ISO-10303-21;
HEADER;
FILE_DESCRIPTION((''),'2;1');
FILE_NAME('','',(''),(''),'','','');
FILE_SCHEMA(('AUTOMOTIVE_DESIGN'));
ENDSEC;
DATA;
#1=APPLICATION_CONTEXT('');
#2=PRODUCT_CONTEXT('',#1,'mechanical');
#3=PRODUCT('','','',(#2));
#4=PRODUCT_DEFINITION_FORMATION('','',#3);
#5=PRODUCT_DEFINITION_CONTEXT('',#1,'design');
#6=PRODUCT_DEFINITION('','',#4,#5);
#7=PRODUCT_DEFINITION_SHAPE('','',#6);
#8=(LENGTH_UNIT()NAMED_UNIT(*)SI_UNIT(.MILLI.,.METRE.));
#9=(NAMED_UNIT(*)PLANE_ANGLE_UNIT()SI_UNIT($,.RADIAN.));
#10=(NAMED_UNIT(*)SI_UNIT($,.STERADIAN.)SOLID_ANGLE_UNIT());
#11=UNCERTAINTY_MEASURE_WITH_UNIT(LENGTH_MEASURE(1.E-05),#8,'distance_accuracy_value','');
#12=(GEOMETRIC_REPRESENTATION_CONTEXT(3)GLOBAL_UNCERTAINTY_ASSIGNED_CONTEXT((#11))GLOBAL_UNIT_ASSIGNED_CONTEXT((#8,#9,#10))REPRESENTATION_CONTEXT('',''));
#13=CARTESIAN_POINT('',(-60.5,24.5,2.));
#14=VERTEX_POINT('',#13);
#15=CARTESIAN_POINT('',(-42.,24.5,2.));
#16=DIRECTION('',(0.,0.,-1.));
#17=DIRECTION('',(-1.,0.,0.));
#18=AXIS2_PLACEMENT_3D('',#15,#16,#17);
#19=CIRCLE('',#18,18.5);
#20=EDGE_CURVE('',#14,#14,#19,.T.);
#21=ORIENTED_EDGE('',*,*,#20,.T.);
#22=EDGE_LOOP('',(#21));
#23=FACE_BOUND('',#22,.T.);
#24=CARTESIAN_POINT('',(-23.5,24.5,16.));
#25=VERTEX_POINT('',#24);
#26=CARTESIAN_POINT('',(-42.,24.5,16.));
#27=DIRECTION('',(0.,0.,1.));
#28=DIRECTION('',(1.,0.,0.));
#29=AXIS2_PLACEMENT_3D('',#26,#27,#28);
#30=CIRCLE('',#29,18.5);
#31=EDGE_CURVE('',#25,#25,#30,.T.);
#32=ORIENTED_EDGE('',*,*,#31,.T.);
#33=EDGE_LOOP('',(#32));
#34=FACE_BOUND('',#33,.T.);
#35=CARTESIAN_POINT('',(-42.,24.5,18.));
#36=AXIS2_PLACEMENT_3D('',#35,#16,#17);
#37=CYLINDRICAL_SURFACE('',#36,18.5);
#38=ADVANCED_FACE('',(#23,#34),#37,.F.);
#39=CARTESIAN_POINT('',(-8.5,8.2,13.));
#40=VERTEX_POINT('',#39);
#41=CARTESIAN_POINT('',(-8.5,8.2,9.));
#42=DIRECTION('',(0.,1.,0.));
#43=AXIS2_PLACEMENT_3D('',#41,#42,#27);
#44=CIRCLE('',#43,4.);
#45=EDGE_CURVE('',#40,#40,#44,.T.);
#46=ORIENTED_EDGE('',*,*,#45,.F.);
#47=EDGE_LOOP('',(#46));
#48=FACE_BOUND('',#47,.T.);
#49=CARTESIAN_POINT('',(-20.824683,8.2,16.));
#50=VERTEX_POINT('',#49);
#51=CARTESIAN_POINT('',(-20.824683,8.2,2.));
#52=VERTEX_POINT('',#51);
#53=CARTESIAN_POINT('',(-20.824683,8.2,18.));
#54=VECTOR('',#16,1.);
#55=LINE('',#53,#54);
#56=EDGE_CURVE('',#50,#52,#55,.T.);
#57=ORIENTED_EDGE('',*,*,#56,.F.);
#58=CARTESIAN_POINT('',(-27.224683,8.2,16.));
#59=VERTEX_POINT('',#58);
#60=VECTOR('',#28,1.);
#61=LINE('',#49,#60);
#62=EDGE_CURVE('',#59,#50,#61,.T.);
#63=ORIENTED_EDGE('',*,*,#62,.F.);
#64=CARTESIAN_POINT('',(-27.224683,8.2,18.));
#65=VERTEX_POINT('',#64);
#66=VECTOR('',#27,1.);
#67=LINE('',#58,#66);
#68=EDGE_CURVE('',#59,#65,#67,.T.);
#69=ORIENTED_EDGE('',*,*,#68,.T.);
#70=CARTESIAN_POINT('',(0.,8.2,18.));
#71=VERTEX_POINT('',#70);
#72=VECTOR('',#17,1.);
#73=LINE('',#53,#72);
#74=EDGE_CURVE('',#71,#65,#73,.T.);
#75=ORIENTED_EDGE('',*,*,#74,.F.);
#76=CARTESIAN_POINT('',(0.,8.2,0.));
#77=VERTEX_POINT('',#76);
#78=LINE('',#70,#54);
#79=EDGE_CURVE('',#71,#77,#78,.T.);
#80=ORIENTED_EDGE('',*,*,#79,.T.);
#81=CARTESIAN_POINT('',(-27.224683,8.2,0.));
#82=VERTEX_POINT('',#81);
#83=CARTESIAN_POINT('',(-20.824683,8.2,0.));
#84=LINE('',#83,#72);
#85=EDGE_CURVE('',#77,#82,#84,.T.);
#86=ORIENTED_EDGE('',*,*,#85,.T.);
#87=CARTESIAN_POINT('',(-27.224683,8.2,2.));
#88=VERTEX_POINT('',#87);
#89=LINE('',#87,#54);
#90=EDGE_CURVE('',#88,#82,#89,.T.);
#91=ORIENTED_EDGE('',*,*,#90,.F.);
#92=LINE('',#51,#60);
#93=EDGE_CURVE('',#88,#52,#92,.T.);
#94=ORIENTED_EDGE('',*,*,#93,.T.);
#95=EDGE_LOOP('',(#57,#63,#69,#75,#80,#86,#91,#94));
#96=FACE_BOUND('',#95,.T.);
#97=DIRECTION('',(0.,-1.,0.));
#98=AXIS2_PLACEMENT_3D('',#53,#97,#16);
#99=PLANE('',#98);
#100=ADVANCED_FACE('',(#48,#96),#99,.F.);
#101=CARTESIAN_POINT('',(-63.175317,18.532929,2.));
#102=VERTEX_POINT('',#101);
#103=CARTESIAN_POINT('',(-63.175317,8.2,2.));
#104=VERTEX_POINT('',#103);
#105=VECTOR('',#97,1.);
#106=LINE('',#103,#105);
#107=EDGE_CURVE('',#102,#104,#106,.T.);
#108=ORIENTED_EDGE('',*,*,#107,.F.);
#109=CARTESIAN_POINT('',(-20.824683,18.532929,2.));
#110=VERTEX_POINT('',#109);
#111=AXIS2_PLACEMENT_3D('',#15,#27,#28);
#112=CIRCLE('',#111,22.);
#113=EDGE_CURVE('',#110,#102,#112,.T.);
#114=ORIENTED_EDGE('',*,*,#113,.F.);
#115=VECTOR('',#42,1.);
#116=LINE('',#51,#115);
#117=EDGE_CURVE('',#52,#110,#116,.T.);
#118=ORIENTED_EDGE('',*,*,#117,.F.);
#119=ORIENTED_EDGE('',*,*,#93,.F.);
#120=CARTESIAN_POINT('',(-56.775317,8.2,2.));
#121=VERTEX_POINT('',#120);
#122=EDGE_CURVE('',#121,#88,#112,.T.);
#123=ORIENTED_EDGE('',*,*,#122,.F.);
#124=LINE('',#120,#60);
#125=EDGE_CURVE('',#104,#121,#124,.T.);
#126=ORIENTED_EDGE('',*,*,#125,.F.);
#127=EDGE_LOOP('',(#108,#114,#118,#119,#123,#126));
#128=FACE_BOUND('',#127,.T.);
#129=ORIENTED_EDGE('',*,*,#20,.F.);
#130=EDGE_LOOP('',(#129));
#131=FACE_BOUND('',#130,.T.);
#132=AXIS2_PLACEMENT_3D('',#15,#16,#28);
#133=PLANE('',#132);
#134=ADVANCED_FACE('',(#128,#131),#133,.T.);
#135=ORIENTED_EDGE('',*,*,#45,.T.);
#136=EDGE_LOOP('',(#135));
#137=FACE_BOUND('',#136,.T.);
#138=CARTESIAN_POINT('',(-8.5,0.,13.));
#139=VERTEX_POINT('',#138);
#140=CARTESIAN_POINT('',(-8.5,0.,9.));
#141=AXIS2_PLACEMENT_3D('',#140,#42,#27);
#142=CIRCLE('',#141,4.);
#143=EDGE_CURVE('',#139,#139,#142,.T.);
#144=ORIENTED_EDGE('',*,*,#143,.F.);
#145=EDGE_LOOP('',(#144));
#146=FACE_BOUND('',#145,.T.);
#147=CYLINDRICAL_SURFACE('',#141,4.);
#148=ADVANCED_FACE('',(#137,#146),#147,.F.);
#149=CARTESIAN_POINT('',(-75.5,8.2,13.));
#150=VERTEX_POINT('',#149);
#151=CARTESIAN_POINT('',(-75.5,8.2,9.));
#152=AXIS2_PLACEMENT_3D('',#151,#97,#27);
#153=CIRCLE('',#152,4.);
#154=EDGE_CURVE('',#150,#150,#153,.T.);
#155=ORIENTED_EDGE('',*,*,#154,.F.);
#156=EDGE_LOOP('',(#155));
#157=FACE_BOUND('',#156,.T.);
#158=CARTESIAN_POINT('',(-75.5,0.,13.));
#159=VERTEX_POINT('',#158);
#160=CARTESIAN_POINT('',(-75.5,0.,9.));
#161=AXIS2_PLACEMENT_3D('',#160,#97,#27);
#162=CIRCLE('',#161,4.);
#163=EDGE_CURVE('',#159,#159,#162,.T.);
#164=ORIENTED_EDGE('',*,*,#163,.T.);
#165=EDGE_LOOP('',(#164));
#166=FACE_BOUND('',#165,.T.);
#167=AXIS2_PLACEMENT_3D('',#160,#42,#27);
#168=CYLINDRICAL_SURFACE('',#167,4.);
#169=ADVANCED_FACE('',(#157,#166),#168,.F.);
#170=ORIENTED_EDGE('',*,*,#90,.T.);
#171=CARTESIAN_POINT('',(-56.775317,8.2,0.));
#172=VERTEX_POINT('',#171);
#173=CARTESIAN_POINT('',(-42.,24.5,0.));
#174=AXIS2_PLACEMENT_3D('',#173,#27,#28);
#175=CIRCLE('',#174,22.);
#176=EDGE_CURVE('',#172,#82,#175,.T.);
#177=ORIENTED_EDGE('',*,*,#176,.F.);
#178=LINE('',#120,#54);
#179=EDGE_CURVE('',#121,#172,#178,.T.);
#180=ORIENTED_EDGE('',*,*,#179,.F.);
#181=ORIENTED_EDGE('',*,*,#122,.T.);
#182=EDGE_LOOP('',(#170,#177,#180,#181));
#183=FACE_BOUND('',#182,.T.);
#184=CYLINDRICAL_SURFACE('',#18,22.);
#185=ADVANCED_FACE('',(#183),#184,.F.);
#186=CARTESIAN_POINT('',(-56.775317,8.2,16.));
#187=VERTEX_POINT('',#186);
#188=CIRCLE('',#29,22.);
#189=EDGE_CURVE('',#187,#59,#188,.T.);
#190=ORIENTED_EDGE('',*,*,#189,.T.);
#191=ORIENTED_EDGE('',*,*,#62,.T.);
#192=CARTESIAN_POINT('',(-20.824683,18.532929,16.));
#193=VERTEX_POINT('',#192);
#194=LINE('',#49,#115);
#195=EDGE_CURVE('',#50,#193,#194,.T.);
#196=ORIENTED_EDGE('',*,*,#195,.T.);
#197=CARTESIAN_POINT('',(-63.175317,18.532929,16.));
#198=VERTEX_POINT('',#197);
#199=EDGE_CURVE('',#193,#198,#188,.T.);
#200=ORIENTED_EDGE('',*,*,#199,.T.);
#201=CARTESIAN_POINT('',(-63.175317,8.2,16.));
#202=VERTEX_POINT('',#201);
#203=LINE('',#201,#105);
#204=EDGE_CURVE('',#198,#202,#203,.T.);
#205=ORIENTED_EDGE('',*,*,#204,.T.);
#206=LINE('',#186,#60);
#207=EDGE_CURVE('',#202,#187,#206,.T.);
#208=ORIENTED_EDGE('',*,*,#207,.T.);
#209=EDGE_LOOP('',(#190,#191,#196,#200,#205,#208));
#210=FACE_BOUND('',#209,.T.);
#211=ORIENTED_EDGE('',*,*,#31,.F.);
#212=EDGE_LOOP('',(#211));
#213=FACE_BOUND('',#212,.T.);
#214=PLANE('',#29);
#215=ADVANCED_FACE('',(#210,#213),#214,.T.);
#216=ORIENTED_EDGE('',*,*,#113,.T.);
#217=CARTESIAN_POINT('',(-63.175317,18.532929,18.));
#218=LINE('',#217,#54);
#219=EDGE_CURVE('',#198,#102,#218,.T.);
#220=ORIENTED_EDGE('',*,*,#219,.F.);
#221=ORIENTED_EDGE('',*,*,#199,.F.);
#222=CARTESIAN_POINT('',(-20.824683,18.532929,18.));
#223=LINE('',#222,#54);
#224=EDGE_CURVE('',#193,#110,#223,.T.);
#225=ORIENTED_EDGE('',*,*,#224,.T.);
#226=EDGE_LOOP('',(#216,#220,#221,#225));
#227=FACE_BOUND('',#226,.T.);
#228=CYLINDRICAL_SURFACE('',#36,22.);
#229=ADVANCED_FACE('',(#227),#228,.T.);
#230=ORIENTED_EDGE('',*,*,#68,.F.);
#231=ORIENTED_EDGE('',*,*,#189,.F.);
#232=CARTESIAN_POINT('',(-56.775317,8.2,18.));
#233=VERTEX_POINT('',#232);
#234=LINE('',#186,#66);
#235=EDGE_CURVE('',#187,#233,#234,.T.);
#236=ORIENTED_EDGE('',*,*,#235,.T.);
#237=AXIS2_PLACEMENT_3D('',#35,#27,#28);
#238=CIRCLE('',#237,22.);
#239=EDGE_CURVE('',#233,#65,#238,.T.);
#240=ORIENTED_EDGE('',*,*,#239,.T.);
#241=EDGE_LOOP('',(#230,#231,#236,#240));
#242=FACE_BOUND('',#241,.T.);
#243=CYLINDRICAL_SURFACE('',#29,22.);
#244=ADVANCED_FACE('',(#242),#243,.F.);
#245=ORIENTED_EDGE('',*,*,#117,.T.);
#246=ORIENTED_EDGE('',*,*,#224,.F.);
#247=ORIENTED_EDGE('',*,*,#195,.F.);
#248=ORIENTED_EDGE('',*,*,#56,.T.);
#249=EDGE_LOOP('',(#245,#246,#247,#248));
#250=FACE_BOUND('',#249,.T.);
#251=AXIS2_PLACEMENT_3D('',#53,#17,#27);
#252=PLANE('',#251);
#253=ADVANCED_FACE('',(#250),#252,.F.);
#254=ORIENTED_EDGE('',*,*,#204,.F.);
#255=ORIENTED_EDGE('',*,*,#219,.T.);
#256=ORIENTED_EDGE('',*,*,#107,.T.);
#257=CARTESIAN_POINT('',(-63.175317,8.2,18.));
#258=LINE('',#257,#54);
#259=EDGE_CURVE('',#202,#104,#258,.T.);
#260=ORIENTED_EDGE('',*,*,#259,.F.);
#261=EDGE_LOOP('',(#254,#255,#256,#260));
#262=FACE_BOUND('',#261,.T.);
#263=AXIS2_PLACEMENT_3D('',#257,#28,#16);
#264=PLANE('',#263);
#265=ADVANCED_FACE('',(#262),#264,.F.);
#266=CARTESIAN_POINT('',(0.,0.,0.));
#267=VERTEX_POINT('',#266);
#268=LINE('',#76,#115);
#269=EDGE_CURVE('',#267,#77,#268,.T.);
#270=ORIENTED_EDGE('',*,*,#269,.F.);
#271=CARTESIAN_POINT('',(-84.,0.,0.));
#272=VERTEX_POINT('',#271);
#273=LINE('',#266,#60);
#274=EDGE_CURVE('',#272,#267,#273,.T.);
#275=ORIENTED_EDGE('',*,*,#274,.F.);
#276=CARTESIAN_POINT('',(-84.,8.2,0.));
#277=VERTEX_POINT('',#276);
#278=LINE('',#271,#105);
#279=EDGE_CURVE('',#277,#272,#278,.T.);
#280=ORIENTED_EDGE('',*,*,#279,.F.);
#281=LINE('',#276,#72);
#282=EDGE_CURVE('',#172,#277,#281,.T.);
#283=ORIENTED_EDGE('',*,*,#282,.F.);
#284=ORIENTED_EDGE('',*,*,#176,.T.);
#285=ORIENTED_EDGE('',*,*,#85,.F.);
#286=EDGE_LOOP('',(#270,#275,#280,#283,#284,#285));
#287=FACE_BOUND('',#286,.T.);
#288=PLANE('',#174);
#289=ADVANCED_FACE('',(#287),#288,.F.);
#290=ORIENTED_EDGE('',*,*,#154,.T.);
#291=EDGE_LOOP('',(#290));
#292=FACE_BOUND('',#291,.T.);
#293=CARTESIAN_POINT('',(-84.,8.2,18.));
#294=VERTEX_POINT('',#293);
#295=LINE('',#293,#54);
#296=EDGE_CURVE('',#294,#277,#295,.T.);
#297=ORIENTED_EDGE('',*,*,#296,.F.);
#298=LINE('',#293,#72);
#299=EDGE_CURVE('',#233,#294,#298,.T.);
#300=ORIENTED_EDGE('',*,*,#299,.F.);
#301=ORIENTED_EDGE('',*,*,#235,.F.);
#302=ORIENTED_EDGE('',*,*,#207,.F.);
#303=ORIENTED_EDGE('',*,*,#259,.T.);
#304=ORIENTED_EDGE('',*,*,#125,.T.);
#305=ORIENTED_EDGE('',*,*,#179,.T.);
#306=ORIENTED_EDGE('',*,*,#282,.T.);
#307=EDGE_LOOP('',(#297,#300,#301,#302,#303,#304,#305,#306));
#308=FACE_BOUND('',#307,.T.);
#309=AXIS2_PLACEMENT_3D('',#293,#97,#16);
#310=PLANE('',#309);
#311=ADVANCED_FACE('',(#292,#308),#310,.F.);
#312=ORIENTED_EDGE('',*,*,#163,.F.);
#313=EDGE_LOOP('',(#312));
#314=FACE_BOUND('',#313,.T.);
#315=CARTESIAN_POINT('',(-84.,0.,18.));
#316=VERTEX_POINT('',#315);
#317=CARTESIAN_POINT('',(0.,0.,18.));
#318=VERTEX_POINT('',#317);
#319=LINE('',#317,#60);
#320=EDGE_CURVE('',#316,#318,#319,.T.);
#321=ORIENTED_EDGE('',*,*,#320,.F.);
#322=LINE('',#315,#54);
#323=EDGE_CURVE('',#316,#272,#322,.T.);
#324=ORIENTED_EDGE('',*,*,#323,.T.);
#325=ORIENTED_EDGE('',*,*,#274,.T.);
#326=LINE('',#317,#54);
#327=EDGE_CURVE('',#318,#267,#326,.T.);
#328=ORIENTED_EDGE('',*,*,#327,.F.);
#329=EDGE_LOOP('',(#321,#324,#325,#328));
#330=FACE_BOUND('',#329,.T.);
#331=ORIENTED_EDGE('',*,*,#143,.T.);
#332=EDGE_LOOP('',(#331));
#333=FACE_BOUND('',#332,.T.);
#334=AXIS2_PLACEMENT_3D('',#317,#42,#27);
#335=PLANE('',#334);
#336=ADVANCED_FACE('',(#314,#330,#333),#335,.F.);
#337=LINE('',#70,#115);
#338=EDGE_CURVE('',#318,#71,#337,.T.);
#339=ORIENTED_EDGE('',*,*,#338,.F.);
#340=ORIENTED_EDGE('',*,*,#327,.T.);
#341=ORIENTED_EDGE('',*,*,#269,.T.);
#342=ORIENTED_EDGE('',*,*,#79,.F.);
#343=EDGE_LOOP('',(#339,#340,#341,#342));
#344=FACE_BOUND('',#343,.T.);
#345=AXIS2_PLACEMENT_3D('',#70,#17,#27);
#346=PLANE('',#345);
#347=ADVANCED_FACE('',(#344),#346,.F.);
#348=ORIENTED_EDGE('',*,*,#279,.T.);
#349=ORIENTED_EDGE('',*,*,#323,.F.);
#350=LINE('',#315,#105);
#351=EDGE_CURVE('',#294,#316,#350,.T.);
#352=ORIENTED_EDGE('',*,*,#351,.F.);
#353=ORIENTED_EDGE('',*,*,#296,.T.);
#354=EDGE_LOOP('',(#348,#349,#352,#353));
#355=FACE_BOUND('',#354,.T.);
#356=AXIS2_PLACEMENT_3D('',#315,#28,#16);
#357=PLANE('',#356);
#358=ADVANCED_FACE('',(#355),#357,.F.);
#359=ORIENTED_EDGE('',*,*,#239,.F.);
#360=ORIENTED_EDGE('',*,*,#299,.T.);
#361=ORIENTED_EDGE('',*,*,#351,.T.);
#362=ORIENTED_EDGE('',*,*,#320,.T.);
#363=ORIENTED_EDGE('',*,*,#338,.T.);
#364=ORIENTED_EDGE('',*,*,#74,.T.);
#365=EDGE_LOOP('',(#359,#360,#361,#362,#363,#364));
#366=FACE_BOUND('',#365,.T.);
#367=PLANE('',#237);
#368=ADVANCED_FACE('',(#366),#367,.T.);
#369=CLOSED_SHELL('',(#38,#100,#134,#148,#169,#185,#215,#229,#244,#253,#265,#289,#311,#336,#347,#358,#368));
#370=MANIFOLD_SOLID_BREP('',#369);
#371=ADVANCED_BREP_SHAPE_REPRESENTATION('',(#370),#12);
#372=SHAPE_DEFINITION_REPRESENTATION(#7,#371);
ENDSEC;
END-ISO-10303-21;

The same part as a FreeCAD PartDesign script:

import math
import FreeCAD as App
import Part
import Sketcher

V = App.Vector

doc = App.newDocument("Part")
params = doc.addObject("Spreadsheet::Sheet", "Params")
for row, (alias, value) in enumerate([
    ("sketch1_diameter", "37 mm"),
    ("sketch1_radius", "22 mm"),
    ("sketch1_width", "84 mm"),
    ("sketch1_height", "8.2 mm"),
    ("pad1_length", "18 mm"),
    ("sketch2_diameter", "35 mm"),
    ("sketch2_radius", "22 mm"),
    ("sketch2_width", "6.4 mm"),
    ("pocket1_length", "2 mm"),
    ("sketch3_diameter", "8 mm"),
], start=1):
    params.set(f"A{row}", alias)
    params.set(f"B{row}", "=" + value)
    params.setAlias(f"B{row}", alias)

body = doc.addObject("PartDesign::Body", "Body")

sketch1 = doc.addObject("Sketcher::SketchObject", "Sketch")
body.addObject(sketch1)
sketch1.AttachmentSupport = (doc.XY_Plane, [""])
sketch1.MapMode = "FlatFace"
sketch1.addGeometry([
    Part.LineSegment(V(-84, 0, 0), V(0, 0, 0)),
    Part.LineSegment(V(0, 0, 0), V(0, 8.2, 0)),
    Part.LineSegment(V(0, 8.2, 0), V(-20.824683, 8.2, 0)),
    Part.LineSegment(V(-20.824683, 8.2, 0), V(-20.824683, 18.532929, 0)),
    Part.ArcOfCircle(Part.Circle(V(-42, 24.5, 0), V(0, 0, 1), 22), math.radians(-15.737503), math.radians(195.737503)),
    Part.LineSegment(V(-63.175317, 18.532929, 0), V(-63.175317, 8.2, 0)),
    Part.LineSegment(V(-63.175317, 8.2, 0), V(-84, 8.2, 0)),
    Part.LineSegment(V(-84, 8.2, 0), V(-84, 0, 0)),
    Part.Circle(V(-42, 24.5, 0), V(0, 0, 1), 18.5),
], False)
sketch1.addConstraint([
    Sketcher.Constraint("Coincident", 0, 2, 1, 1),
    Sketcher.Constraint("Coincident", 1, 2, 2, 1),
    Sketcher.Constraint("Coincident", 2, 2, 3, 1),
    Sketcher.Constraint("Coincident", 3, 2, 4, 1),
    Sketcher.Constraint("Coincident", 4, 2, 5, 1),
    Sketcher.Constraint("Coincident", 5, 2, 6, 1),
    Sketcher.Constraint("Coincident", 6, 2, 7, 1),
    Sketcher.Constraint("Coincident", 7, 2, 0, 1),
    Sketcher.Constraint("Horizontal", 0),
    Sketcher.Constraint("Vertical", 1),
    Sketcher.Constraint("Horizontal", 2),
    Sketcher.Constraint("Vertical", 3),
    Sketcher.Constraint("Vertical", 5),
    Sketcher.Constraint("Horizontal", 6),
    Sketcher.Constraint("Vertical", 7),
    Sketcher.Constraint("Coincident", 0, 2, -1, 1),
    Sketcher.Constraint("Coincident", 8, 3, 4, 3),
    Sketcher.Constraint("Horizontal", 3, 2, 4, 2),
    Sketcher.Constraint("Horizontal", 2, 2, 5, 2),
    Sketcher.Constraint("Equal", 2, 6),
    Sketcher.Constraint("Diameter", 8, 37.0),
    Sketcher.Constraint("Radius", 4, 22.0),
    Sketcher.Constraint("DistanceX", 0, 1, 0, 2, 84.0),
    Sketcher.Constraint("DistanceY", 1, 1, 1, 2, 8.2),
    Sketcher.Constraint("DistanceY", -1, 1, 4, 3, 24.5),
    Sketcher.Constraint("DistanceY", 3, 1, 3, 2, 10.332929),
])
sketch1.setExpression("Constraints[20]", "Params.sketch1_diameter")
sketch1.setExpression("Constraints[21]", "Params.sketch1_radius")
sketch1.setExpression("Constraints[22]", "Params.sketch1_width")
sketch1.setExpression("Constraints[23]", "Params.sketch1_height")
pad1 = doc.addObject("PartDesign::Pad", "Pad")
body.addObject(pad1)
pad1.Profile = sketch1
pad1.setExpression("Length", "Params.pad1_length")

sketch2 = doc.addObject("Sketcher::SketchObject", "Sketch001")
body.addObject(sketch2)
sketch2.AttachmentSupport = (doc.XY_Plane, [""])
sketch2.MapMode = "FlatFace"
sketch2.AttachmentOffset = App.Placement(V(0, 0, 18), App.Rotation())
sketch2.addGeometry([
    Part.LineSegment(V(-27.224683, 8.2, 0), V(-20.824683, 8.2, 0)),
    Part.LineSegment(V(-20.824683, 8.2, 0), V(-20.824683, 18.532929, 0)),
    Part.ArcOfCircle(Part.Circle(V(-42, 24.5, 0), V(0, 0, 1), 22), math.radians(-15.737503), math.radians(195.737503)),
    Part.LineSegment(V(-63.175317, 18.532929, 0), V(-63.175317, 8.2, 0)),
    Part.LineSegment(V(-63.175317, 8.2, 0), V(-56.775317, 8.2, 0)),
    Part.ArcOfCircle(Part.Circle(V(-42, 24.5, 0), V(0, 0, 1), 22), math.radians(-132.191086), math.radians(-47.808914)),
    Part.Circle(V(-42, 24.5, 0), V(0, 0, 1), 17.5),
], False)
sketch2.addConstraint([
    Sketcher.Constraint("Coincident", 0, 2, 1, 1),
    Sketcher.Constraint("Coincident", 1, 2, 2, 1),
    Sketcher.Constraint("Coincident", 2, 2, 3, 1),
    Sketcher.Constraint("Coincident", 3, 2, 4, 1),
    Sketcher.Constraint("Coincident", 4, 2, 5, 1),
    Sketcher.Constraint("Coincident", 5, 2, 0, 1),
    Sketcher.Constraint("Horizontal", 0),
    Sketcher.Constraint("Vertical", 1),
    Sketcher.Constraint("Vertical", 3),
    Sketcher.Constraint("Horizontal", 4),
    Sketcher.Constraint("Coincident", 5, 3, 2, 3),
    Sketcher.Constraint("Coincident", 6, 3, 2, 3),
    Sketcher.Constraint("Equal", 2, 5),
    Sketcher.Constraint("Horizontal", 1, 2, 2, 2),
    Sketcher.Constraint("Horizontal", 0, 2, 3, 2),
    Sketcher.Constraint("Diameter", 6, 35.0),
    Sketcher.Constraint("Radius", 2, 22.0),
    Sketcher.Constraint("DistanceX", 0, 1, 0, 2, 6.4),
    Sketcher.Constraint("DistanceX", 2, 3, -1, 1, 42.0),
    Sketcher.Constraint("DistanceY", -1, 1, 2, 3, 24.5),
    Sketcher.Constraint("DistanceY", -1, 1, 0, 2, 8.2),
])
sketch2.setExpression("Constraints[15]", "Params.sketch2_diameter")
sketch2.setExpression("Constraints[16]", "Params.sketch2_radius")
sketch2.setExpression("Constraints[17]", "Params.sketch2_width")
pocket1 = doc.addObject("PartDesign::Pocket", "Pocket")
body.addObject(pocket1)
pocket1.Profile = sketch2
pocket1.setExpression("Length", "Params.pocket1_length")
doc.recompute()

datumplane = doc.addObject("PartDesign::Plane", "DatumPlane")
body.addObject(datumplane)
datumplane.AttachmentSupport = (doc.XY_Plane, [""])
datumplane.MapMode = "FlatFace"
datumplane.AttachmentOffset = App.Placement(V(0, 0, 9), App.Rotation())
mirrored = doc.addObject("PartDesign::Mirrored", "Mirrored")
body.addObject(mirrored)
mirrored.Originals = [pocket1]
mirrored.MirrorPlane = (datumplane, [""])
body.Tip = mirrored

sketch3 = doc.addObject("Sketcher::SketchObject", "Sketch002")
body.addObject(sketch3)
sketch3.AttachmentSupport = (doc.XZ_Plane, [""])
sketch3.MapMode = "FlatFace"
sketch3.AttachmentOffset = App.Placement(V(0, 0, -8.2), App.Rotation())
sketch3.addGeometry(Part.Circle(V(-8.5, 9, 0), V(0, 0, 1), 4), False)
sketch3.addConstraint([
    Sketcher.Constraint("Diameter", 0, 8.0),
    Sketcher.Constraint("DistanceY", -1, 1, 0, 3, 9.0),
    Sketcher.Constraint("DistanceX", 0, 3, -1, 1, 8.5),
])
sketch3.setExpression("Constraints[0]", "Params.sketch3_diameter")
pocket2 = doc.addObject("PartDesign::Pocket", "Pocket001")
body.addObject(pocket2)
pocket2.Profile = sketch3
pocket2.Type = "ThroughAll"
pocket2.Reversed = True
doc.recompute()

datumplane2 = doc.addObject("PartDesign::Plane", "DatumPlane001")
body.addObject(datumplane2)
datumplane2.AttachmentSupport = (doc.YZ_Plane, [""])
datumplane2.MapMode = "FlatFace"
datumplane2.AttachmentOffset = App.Placement(V(0, 0, -42), App.Rotation())
mirrored2 = doc.addObject("PartDesign::Mirrored", "Mirrored001")
body.addObject(mirrored2)
mirrored2.Originals = [pocket2]
mirrored2.MirrorPlane = (datumplane2, [""])
body.Tip = mirrored2

doc.recompute()
